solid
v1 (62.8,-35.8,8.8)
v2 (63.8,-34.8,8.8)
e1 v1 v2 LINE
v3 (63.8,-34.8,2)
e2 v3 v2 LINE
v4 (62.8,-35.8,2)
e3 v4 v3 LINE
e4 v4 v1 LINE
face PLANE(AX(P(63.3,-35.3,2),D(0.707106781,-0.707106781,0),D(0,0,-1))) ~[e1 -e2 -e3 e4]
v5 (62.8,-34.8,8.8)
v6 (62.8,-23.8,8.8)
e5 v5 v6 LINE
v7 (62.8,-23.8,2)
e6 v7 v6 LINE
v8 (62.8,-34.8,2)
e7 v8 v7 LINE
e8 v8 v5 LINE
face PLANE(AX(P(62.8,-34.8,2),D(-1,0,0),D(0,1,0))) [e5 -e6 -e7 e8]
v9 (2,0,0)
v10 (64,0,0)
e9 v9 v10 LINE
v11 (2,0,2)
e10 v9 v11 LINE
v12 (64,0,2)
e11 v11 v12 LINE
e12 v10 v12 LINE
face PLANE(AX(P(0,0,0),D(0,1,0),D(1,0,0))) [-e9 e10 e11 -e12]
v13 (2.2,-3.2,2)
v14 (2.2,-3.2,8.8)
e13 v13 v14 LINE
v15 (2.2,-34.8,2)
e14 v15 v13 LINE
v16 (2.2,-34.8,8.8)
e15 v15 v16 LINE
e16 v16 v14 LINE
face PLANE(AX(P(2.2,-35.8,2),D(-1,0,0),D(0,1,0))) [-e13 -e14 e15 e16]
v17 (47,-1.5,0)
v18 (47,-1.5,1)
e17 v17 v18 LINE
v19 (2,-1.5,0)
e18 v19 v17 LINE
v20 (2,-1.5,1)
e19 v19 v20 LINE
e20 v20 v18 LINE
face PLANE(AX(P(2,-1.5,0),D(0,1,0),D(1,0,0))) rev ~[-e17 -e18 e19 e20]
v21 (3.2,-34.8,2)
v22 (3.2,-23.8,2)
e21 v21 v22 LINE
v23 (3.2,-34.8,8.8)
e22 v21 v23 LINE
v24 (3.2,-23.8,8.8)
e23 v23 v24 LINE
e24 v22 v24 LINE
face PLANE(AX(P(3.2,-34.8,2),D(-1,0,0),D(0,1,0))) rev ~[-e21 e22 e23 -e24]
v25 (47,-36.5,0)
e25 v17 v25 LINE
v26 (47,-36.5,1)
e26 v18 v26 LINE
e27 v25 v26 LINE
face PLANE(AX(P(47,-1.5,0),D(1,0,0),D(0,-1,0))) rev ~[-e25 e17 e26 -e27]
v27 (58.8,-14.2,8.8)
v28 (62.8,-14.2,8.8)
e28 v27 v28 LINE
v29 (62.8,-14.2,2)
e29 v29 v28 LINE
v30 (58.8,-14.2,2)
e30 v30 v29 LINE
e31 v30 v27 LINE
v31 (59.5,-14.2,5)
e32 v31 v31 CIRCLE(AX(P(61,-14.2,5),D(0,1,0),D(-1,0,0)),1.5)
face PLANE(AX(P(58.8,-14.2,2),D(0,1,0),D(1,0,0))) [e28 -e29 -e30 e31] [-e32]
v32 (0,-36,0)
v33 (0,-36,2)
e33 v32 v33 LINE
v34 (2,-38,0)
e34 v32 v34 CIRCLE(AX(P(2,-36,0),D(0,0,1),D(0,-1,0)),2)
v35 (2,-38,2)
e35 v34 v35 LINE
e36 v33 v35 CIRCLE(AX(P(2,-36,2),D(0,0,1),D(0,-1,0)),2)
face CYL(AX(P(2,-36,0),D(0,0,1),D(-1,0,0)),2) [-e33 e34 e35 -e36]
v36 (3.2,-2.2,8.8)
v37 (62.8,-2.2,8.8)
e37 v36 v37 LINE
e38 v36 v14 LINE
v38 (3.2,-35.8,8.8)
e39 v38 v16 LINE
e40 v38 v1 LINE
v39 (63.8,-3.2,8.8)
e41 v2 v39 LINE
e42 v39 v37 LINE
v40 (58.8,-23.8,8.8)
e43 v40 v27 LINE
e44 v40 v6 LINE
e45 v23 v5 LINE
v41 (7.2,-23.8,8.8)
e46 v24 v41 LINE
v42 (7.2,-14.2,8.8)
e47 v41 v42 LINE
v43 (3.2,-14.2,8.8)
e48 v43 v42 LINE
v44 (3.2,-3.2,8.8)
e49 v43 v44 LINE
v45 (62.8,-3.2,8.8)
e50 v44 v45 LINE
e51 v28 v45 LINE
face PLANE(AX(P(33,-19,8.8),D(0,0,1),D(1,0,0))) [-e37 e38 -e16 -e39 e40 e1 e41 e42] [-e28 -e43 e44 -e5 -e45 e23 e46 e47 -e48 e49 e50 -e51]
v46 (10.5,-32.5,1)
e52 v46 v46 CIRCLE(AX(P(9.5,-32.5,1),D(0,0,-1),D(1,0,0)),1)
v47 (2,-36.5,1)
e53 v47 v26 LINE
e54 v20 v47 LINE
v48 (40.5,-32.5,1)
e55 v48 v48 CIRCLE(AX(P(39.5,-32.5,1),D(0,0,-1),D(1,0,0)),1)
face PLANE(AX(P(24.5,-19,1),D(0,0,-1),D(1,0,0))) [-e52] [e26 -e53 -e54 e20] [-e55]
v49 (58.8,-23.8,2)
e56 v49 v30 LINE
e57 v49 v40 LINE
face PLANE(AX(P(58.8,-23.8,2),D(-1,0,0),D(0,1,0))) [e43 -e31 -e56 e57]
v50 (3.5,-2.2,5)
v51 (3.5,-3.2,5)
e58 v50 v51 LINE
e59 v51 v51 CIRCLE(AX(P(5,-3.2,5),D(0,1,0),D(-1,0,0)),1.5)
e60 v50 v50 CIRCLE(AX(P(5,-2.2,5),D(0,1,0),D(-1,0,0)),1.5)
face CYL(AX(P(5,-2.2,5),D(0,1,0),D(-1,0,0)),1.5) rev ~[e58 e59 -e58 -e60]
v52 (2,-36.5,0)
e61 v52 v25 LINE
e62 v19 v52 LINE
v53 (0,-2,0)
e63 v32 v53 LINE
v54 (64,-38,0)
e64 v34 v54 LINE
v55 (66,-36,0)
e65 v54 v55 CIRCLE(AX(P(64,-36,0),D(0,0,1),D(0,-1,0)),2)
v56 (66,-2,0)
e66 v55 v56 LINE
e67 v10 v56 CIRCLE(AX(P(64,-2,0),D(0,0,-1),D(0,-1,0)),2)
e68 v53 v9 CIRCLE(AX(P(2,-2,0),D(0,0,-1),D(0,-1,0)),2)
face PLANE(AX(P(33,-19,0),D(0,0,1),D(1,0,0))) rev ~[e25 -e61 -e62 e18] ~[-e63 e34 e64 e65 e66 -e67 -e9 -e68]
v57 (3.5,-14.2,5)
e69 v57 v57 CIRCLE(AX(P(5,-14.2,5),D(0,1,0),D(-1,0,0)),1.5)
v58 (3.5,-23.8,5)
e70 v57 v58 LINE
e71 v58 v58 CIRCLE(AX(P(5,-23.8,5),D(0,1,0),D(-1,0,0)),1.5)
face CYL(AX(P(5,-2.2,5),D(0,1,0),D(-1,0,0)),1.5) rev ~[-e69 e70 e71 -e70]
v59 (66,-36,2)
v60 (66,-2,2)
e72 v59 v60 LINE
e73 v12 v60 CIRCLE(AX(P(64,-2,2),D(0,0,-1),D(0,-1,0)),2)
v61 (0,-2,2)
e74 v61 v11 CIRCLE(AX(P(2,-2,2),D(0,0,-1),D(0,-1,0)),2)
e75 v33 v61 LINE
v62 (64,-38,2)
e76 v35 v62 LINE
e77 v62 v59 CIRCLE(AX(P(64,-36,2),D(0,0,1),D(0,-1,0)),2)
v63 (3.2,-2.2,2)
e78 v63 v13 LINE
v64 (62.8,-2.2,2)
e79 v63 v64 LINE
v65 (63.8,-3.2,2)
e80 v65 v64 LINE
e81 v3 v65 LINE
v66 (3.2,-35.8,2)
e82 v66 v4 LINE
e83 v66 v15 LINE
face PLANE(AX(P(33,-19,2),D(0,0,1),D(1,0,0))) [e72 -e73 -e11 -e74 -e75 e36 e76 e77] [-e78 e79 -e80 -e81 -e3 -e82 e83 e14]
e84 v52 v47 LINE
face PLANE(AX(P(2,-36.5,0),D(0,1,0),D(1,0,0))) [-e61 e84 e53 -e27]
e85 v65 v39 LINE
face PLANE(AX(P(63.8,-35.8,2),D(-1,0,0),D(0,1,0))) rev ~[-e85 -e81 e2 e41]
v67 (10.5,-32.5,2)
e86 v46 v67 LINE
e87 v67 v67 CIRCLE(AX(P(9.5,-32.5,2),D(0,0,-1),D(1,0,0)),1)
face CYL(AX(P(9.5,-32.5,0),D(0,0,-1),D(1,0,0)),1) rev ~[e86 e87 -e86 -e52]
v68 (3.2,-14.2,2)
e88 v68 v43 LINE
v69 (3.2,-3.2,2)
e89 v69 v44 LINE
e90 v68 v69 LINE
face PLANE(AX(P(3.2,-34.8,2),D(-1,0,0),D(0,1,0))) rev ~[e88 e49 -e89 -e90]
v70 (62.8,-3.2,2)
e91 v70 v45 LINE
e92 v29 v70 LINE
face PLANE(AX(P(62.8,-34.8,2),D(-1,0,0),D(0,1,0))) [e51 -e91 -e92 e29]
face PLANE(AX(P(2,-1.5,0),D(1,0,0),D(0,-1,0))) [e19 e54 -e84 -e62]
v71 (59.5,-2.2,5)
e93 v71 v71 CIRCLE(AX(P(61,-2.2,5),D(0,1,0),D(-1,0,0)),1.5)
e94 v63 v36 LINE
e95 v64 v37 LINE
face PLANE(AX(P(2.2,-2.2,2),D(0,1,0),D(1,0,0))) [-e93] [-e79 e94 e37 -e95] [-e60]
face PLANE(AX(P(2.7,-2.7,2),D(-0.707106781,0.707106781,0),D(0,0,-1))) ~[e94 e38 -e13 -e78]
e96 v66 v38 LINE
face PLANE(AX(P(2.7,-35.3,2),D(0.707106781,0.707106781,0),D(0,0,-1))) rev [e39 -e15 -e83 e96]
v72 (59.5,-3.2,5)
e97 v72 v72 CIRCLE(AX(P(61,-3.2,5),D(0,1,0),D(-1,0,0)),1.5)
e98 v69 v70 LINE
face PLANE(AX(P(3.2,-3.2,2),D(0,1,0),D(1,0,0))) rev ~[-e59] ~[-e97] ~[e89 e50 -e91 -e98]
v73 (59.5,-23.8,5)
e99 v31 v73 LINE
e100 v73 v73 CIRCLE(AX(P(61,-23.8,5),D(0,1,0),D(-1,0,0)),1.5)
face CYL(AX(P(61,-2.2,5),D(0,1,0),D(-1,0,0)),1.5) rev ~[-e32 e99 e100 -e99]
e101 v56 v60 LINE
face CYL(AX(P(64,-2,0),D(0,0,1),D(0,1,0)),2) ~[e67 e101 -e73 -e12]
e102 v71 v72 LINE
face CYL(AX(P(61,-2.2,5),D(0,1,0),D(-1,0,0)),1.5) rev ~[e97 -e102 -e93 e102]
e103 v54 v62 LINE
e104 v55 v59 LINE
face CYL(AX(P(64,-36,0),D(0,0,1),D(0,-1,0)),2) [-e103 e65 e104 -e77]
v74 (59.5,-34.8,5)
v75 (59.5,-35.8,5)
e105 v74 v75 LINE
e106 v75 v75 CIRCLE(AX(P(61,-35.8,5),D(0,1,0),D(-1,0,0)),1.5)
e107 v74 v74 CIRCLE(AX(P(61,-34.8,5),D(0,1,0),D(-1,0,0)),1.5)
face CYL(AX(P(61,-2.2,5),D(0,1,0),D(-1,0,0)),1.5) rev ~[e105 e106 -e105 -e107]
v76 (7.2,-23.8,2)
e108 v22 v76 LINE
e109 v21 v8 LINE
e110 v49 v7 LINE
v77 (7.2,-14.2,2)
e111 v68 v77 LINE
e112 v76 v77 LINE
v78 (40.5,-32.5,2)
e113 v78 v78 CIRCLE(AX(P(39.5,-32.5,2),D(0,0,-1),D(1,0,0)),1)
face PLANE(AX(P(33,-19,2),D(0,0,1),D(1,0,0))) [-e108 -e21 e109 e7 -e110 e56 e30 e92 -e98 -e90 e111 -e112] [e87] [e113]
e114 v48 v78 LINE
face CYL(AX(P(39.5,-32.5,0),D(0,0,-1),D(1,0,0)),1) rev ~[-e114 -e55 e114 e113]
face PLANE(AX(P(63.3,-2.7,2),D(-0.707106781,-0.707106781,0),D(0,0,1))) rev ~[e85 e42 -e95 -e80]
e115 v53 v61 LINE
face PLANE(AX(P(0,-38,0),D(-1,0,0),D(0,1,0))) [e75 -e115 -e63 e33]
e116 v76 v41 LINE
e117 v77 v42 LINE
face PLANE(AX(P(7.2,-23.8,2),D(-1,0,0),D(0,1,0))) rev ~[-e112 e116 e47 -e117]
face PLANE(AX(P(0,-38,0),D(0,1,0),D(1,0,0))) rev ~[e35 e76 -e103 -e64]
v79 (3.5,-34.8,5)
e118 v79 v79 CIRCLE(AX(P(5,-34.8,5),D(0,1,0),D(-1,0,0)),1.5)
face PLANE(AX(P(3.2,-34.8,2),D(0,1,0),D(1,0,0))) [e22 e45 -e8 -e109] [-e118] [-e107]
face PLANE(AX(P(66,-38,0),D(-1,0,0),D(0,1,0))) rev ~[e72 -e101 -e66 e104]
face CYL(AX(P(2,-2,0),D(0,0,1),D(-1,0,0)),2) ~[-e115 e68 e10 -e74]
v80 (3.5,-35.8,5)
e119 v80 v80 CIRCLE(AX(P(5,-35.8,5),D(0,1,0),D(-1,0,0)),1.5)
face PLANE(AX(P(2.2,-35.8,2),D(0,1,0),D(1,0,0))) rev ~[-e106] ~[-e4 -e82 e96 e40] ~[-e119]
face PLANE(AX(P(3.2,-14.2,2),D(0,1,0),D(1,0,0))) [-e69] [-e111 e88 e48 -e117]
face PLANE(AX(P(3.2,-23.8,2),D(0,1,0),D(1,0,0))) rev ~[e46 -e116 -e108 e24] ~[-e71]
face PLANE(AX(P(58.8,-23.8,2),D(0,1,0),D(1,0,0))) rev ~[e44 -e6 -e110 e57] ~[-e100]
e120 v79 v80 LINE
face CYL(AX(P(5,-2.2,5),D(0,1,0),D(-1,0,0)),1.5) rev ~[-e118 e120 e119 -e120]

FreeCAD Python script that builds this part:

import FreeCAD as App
import Part
import Sketcher


def edges_at(feature, points):
    """Names of the edges that pass closest to the given points."""
    edges = feature.Shape.Edges
    near = lambda p: min(range(len(edges)), key=lambda i: edges[i].distToShape(Part.Vertex(*p))[0])
    return sorted({f"Edge{near(p) + 1}" for p in points})

doc = App.newDocument("Part")
body = doc.addObject("PartDesign::Body", "Body")

sketch1 = body.newObject("Sketcher::SketchObject", "Sketch")
sketch1.AttachmentSupport = (doc.getObject("XY_Plane"), [""])
sketch1.MapMode = "FlatFace"
sketch1.addGeometry([
    Part.LineSegment(App.Vector(0, 0, 0), App.Vector(0, -38, 0)),
    Part.LineSegment(App.Vector(0, -38, 0), App.Vector(66, -38, 0)),
    Part.LineSegment(App.Vector(66, -38, 0), App.Vector(66, 0, 0)),
    Part.LineSegment(App.Vector(66, 0, 0), App.Vector(0, 0, 0)),
], False)
sketch1.addConstraint([
    Sketcher.Constraint("Coincident", 0, 2, 1, 1),
    Sketcher.Constraint("Coincident", 1, 2, 2, 1),
    Sketcher.Constraint("Coincident", 2, 2, 3, 1),
    Sketcher.Constraint("Coincident", 3, 2, 0, 1),
    Sketcher.Constraint("Vertical", 0),
    Sketcher.Constraint("Horizontal", 1),
    Sketcher.Constraint("Vertical", 2),
    Sketcher.Constraint("Horizontal", 3),
    Sketcher.Constraint("Coincident", 3, 2, -1, 1),
    Sketcher.Constraint("DistanceX", 1, 1, 1, 2, 66.0),
    Sketcher.Constraint("DistanceY", 0, 2, 0, 1, 38.0),
])
pad1 = body.newObject("PartDesign::Pad", "Pad")
pad1.Profile = sketch1
pad1.Length = 2

sketch2 = body.newObject("Sketcher::SketchObject", "Sketch001")
sketch2.AttachmentSupport = (doc.getObject("XY_Plane"), [""])
sketch2.MapMode = "FlatFace"
sketch2.AttachmentOffset = App.Placement(App.Vector(0, 0, 2), App.Rotation())
sketch2.addGeometry([
    Part.LineSegment(App.Vector(2.2, -2.2, 0), App.Vector(2.2, -35.8, 0)),
    Part.LineSegment(App.Vector(2.2, -35.8, 0), App.Vector(63.8, -35.8, 0)),
    Part.LineSegment(App.Vector(63.8, -35.8, 0), App.Vector(63.8, -2.2, 0)),
    Part.LineSegment(App.Vector(63.8, -2.2, 0), App.Vector(2.2, -2.2, 0)),
    Part.LineSegment(App.Vector(62.8, -34.8, 0), App.Vector(3.2, -34.8, 0)),
    Part.LineSegment(App.Vector(3.2, -34.8, 0), App.Vector(3.2, -3.2, 0)),
    Part.LineSegment(App.Vector(3.2, -3.2, 0), App.Vector(62.8, -3.2, 0)),
    Part.LineSegment(App.Vector(62.8, -3.2, 0), App.Vector(62.8, -34.8, 0)),
], False)
sketch2.addConstraint([
    Sketcher.Constraint("Coincident", 0, 2, 1, 1),
    Sketcher.Constraint("Coincident", 1, 2, 2, 1),
    Sketcher.Constraint("Coincident", 2, 2, 3, 1),
    Sketcher.Constraint("Coincident", 3, 2, 0, 1),
    Sketcher.Constraint("Coincident", 4, 2, 5, 1),
    Sketcher.Constraint("Coincident", 5, 2, 6, 1),
    Sketcher.Constraint("Coincident", 6, 2, 7, 1),
    Sketcher.Constraint("Coincident", 7, 2, 4, 1),
    Sketcher.Constraint("Vertical", 0),
    Sketcher.Constraint("Horizontal", 1),
    Sketcher.Constraint("Vertical", 2),
    Sketcher.Constraint("Horizontal", 3),
    Sketcher.Constraint("Horizontal", 4),
    Sketcher.Constraint("Vertical", 5),
    Sketcher.Constraint("Horizontal", 6),
    Sketcher.Constraint("Vertical", 7),
    Sketcher.Constraint("DistanceX", 1, 1, 1, 2, 61.6),
    Sketcher.Constraint("DistanceX", 4, 2, 4, 1, 59.6),
    Sketcher.Constraint("DistanceY", 0, 2, 0, 1, 33.6),
    Sketcher.Constraint("DistanceY", 5, 1, 5, 2, 31.6),
    Sketcher.Constraint("DistanceX", 0, 2, 4, 2, 1.0),
    Sketcher.Constraint("DistanceY", 0, 2, 4, 2, 1.0),
    Sketcher.Constraint("DistanceX", -1, 1, 0, 2, 2.2),
    Sketcher.Constraint("DistanceY", 0, 2, -1, 1, 35.8),
])
pad2 = body.newObject("PartDesign::Pad", "Pad001")
pad2.Profile = sketch2
pad2.Length = 6.8
doc.recompute()

fillet = body.newObject("PartDesign::Fillet", "Fillet")
fillet.Base = (pad2, edges_at(pad2, [
    (0, -38, 1),
    (0, 0, 1),
    (66, -38, 1),
    (66, 0, 1),
]))
fillet.Radius = 2

sketch3 = body.newObject("Sketcher::SketchObject", "Sketch002")
sketch3.AttachmentSupport = (doc.getObject("XY_Plane"), [""])
sketch3.MapMode = "FlatFace"
sketch3.addGeometry([
    Part.LineSegment(App.Vector(2, -36.5, 0), App.Vector(2, -1.5, 0)),
    Part.LineSegment(App.Vector(2, -1.5, 0), App.Vector(47, -1.5, 0)),
    Part.LineSegment(App.Vector(47, -1.5, 0), App.Vector(47, -36.5, 0)),
    Part.LineSegment(App.Vector(47, -36.5, 0), App.Vector(2, -36.5, 0)),
], False)
sketch3.addConstraint([
    Sketcher.Constraint("Coincident", 0, 2, 1, 1),
    Sketcher.Constraint("Coincident", 1, 2, 2, 1),
    Sketcher.Constraint("Coincident", 2, 2, 3, 1),
    Sketcher.Constraint("Coincident", 3, 2, 0, 1),
    Sketcher.Constraint("Vertical", 0),
    Sketcher.Constraint("Horizontal", 1),
    Sketcher.Constraint("Vertical", 2),
    Sketcher.Constraint("Horizontal", 3),
    Sketcher.Constraint("DistanceX", 1, 1, 1, 2, 45.0),
    Sketcher.Constraint("DistanceY", 0, 1, 0, 2, 35.0),
    Sketcher.Constraint("DistanceX", -1, 1, 0, 2, 2.0),
    Sketcher.Constraint("DistanceY", 0, 2, -1, 1, 1.5),
])
pocket1 = body.newObject("PartDesign::Pocket", "Pocket")
pocket1.Profile = sketch3
pocket1.Length = 1
pocket1.Reversed = True

sketch4 = body.newObject("Sketcher::SketchObject", "Sketch003")
sketch4.AttachmentSupport = (doc.getObject("XY_Plane"), [""])
sketch4.MapMode = "FlatFace"
sketch4.addGeometry([
    Part.Circle(App.Vector(9.5, -32.5, 0), App.Vector(0, 0, 1), 1),
    Part.Circle(App.Vector(39.5, -32.5, 0), App.Vector(0, 0, 1), 1),
], False)
sketch4.addConstraint([
    Sketcher.Constraint("Equal", 0, 1),
    Sketcher.Constraint("Horizontal", 0, 3, 1, 3),
    Sketcher.Constraint("Diameter", 0, 2.0),
    Sketcher.Constraint("DistanceX", 0, 3, 1, 3, 30.0),
    Sketcher.Constraint("DistanceX", -1, 1, 0, 3, 9.5),
    Sketcher.Constraint("DistanceY", 0, 3, -1, 1, 32.5),
])
pocket2 = body.newObject("PartDesign::Pocket", "Pocket001")
pocket2.Profile = sketch4
pocket2.Type = "ThroughAll"
pocket2.Reversed = True

sketch5 = body.newObject("Sketcher::SketchObject", "Sketch004")
sketch5.AttachmentSupport = (doc.getObject("XY_Plane"), [""])
sketch5.MapMode = "FlatFace"
sketch5.AttachmentOffset = App.Placement(App.Vector(0, 0, 2), App.Rotation())
sketch5.addGeometry([
    Part.LineSegment(App.Vector(3.2, -14.2, 0), App.Vector(3.2, -23.8, 0)),
    Part.LineSegment(App.Vector(3.2, -23.8, 0), App.Vector(7.2, -23.8, 0)),
    Part.LineSegment(App.Vector(7.2, -23.8, 0), App.Vector(7.2, -14.2, 0)),
    Part.LineSegment(App.Vector(7.2, -14.2, 0), App.Vector(3.2, -14.2, 0)),
    Part.LineSegment(App.Vector(58.8, -14.2, 0), App.Vector(58.8, -23.8, 0)),
    Part.LineSegment(App.Vector(58.8, -23.8, 0), App.Vector(62.8, -23.8, 0)),
    Part.LineSegment(App.Vector(62.8, -23.8, 0), App.Vector(62.8, -14.2, 0)),
    Part.LineSegment(App.Vector(62.8, -14.2, 0), App.Vector(58.8, -14.2, 0)),
], False)
sketch5.addConstraint([
    Sketcher.Constraint("Coincident", 0, 2, 1, 1),
    Sketcher.Constraint("Coincident", 1, 2, 2, 1),
    Sketcher.Constraint("Coincident", 2, 2, 3, 1),
    Sketcher.Constraint("Coincident", 3, 2, 0, 1),
    Sketcher.Constraint("Coincident", 4, 2, 5, 1),
    Sketcher.Constraint("Coincident", 5, 2, 6, 1),
    Sketcher.Constraint("Coincident", 6, 2, 7, 1),
    Sketcher.Constraint("Coincident", 7, 2, 4, 1),
    Sketcher.Constraint("Vertical", 0),
    Sketcher.Constraint("Horizontal", 1),
    Sketcher.Constraint("Vertical", 2),
    Sketcher.Constraint("Horizontal", 3),
    Sketcher.Constraint("Vertical", 4),
    Sketcher.Constraint("Horizontal", 5),
    Sketcher.Constraint("Vertical", 6),
    Sketcher.Constraint("Horizontal", 7),
    Sketcher.Constraint("Horizontal", 1, 2, 4, 2),
    Sketcher.Constraint("Horizontal", 3, 2, 6, 2),
    Sketcher.Constraint("Equal", 3, 5),
    Sketcher.Constraint("DistanceX", 1, 1, 1, 2, 4.0),
    Sketcher.Constraint("DistanceY", 0, 2, 0, 1, 9.6),
    Sketcher.Constraint("DistanceX", -1, 1, 0, 2, 3.2),
    Sketcher.Constraint("DistanceY", 0, 2, -1, 1, 23.8),
    Sketcher.Constraint("DistanceX", -1, 1, 4, 2, 58.8),
])
pad3 = body.newObject("PartDesign::Pad", "Pad002")
pad3.Profile = sketch5
pad3.Length = 6.8

sketch6 = body.newObject("Sketcher::SketchObject", "Sketch005")
sketch6.AttachmentSupport = (doc.getObject("XZ_Plane"), [""])
sketch6.MapMode = "FlatFace"
sketch6.AttachmentOffset = App.Placement(App.Vector(0, 0, 2.2), App.Rotation())
sketch6.addGeometry([
    Part.Circle(App.Vector(61, 5, 0), App.Vector(0, 0, 1), 1.5),
    Part.Circle(App.Vector(5, 5, 0), App.Vector(0, 0, 1), 1.5),
], False)
sketch6.addConstraint([
    Sketcher.Constraint("Equal", 0, 1),
    Sketcher.Constraint("Horizontal", 0, 3, 1, 3),
    Sketcher.Constraint("Diameter", 0, 3.0),
    Sketcher.Constraint("DistanceX", -1, 1, 0, 3, 61.0),
    Sketcher.Constraint("DistanceY", -1, 1, 0, 3, 5.0),
    Sketcher.Constraint("DistanceX", -1, 1, 1, 3, 5.0),
])
pocket3 = body.newObject("PartDesign::Pocket", "Pocket002")
pocket3.Profile = sketch6
pocket3.Type = "ThroughAll"
pocket3.Reversed = True
doc.recompute()

chamfer = body.newObject("PartDesign::Chamfer", "Chamfer")
chamfer.Base = (pocket3, edges_at(pocket3, [
    (2.2, -2.2, 5.4),
    (2.2, -35.8, 5.4),
    (63.8, -35.8, 5.4),
    (63.8, -2.2, 5.4),
]))
chamfer.Size = 1

doc.recompute()
